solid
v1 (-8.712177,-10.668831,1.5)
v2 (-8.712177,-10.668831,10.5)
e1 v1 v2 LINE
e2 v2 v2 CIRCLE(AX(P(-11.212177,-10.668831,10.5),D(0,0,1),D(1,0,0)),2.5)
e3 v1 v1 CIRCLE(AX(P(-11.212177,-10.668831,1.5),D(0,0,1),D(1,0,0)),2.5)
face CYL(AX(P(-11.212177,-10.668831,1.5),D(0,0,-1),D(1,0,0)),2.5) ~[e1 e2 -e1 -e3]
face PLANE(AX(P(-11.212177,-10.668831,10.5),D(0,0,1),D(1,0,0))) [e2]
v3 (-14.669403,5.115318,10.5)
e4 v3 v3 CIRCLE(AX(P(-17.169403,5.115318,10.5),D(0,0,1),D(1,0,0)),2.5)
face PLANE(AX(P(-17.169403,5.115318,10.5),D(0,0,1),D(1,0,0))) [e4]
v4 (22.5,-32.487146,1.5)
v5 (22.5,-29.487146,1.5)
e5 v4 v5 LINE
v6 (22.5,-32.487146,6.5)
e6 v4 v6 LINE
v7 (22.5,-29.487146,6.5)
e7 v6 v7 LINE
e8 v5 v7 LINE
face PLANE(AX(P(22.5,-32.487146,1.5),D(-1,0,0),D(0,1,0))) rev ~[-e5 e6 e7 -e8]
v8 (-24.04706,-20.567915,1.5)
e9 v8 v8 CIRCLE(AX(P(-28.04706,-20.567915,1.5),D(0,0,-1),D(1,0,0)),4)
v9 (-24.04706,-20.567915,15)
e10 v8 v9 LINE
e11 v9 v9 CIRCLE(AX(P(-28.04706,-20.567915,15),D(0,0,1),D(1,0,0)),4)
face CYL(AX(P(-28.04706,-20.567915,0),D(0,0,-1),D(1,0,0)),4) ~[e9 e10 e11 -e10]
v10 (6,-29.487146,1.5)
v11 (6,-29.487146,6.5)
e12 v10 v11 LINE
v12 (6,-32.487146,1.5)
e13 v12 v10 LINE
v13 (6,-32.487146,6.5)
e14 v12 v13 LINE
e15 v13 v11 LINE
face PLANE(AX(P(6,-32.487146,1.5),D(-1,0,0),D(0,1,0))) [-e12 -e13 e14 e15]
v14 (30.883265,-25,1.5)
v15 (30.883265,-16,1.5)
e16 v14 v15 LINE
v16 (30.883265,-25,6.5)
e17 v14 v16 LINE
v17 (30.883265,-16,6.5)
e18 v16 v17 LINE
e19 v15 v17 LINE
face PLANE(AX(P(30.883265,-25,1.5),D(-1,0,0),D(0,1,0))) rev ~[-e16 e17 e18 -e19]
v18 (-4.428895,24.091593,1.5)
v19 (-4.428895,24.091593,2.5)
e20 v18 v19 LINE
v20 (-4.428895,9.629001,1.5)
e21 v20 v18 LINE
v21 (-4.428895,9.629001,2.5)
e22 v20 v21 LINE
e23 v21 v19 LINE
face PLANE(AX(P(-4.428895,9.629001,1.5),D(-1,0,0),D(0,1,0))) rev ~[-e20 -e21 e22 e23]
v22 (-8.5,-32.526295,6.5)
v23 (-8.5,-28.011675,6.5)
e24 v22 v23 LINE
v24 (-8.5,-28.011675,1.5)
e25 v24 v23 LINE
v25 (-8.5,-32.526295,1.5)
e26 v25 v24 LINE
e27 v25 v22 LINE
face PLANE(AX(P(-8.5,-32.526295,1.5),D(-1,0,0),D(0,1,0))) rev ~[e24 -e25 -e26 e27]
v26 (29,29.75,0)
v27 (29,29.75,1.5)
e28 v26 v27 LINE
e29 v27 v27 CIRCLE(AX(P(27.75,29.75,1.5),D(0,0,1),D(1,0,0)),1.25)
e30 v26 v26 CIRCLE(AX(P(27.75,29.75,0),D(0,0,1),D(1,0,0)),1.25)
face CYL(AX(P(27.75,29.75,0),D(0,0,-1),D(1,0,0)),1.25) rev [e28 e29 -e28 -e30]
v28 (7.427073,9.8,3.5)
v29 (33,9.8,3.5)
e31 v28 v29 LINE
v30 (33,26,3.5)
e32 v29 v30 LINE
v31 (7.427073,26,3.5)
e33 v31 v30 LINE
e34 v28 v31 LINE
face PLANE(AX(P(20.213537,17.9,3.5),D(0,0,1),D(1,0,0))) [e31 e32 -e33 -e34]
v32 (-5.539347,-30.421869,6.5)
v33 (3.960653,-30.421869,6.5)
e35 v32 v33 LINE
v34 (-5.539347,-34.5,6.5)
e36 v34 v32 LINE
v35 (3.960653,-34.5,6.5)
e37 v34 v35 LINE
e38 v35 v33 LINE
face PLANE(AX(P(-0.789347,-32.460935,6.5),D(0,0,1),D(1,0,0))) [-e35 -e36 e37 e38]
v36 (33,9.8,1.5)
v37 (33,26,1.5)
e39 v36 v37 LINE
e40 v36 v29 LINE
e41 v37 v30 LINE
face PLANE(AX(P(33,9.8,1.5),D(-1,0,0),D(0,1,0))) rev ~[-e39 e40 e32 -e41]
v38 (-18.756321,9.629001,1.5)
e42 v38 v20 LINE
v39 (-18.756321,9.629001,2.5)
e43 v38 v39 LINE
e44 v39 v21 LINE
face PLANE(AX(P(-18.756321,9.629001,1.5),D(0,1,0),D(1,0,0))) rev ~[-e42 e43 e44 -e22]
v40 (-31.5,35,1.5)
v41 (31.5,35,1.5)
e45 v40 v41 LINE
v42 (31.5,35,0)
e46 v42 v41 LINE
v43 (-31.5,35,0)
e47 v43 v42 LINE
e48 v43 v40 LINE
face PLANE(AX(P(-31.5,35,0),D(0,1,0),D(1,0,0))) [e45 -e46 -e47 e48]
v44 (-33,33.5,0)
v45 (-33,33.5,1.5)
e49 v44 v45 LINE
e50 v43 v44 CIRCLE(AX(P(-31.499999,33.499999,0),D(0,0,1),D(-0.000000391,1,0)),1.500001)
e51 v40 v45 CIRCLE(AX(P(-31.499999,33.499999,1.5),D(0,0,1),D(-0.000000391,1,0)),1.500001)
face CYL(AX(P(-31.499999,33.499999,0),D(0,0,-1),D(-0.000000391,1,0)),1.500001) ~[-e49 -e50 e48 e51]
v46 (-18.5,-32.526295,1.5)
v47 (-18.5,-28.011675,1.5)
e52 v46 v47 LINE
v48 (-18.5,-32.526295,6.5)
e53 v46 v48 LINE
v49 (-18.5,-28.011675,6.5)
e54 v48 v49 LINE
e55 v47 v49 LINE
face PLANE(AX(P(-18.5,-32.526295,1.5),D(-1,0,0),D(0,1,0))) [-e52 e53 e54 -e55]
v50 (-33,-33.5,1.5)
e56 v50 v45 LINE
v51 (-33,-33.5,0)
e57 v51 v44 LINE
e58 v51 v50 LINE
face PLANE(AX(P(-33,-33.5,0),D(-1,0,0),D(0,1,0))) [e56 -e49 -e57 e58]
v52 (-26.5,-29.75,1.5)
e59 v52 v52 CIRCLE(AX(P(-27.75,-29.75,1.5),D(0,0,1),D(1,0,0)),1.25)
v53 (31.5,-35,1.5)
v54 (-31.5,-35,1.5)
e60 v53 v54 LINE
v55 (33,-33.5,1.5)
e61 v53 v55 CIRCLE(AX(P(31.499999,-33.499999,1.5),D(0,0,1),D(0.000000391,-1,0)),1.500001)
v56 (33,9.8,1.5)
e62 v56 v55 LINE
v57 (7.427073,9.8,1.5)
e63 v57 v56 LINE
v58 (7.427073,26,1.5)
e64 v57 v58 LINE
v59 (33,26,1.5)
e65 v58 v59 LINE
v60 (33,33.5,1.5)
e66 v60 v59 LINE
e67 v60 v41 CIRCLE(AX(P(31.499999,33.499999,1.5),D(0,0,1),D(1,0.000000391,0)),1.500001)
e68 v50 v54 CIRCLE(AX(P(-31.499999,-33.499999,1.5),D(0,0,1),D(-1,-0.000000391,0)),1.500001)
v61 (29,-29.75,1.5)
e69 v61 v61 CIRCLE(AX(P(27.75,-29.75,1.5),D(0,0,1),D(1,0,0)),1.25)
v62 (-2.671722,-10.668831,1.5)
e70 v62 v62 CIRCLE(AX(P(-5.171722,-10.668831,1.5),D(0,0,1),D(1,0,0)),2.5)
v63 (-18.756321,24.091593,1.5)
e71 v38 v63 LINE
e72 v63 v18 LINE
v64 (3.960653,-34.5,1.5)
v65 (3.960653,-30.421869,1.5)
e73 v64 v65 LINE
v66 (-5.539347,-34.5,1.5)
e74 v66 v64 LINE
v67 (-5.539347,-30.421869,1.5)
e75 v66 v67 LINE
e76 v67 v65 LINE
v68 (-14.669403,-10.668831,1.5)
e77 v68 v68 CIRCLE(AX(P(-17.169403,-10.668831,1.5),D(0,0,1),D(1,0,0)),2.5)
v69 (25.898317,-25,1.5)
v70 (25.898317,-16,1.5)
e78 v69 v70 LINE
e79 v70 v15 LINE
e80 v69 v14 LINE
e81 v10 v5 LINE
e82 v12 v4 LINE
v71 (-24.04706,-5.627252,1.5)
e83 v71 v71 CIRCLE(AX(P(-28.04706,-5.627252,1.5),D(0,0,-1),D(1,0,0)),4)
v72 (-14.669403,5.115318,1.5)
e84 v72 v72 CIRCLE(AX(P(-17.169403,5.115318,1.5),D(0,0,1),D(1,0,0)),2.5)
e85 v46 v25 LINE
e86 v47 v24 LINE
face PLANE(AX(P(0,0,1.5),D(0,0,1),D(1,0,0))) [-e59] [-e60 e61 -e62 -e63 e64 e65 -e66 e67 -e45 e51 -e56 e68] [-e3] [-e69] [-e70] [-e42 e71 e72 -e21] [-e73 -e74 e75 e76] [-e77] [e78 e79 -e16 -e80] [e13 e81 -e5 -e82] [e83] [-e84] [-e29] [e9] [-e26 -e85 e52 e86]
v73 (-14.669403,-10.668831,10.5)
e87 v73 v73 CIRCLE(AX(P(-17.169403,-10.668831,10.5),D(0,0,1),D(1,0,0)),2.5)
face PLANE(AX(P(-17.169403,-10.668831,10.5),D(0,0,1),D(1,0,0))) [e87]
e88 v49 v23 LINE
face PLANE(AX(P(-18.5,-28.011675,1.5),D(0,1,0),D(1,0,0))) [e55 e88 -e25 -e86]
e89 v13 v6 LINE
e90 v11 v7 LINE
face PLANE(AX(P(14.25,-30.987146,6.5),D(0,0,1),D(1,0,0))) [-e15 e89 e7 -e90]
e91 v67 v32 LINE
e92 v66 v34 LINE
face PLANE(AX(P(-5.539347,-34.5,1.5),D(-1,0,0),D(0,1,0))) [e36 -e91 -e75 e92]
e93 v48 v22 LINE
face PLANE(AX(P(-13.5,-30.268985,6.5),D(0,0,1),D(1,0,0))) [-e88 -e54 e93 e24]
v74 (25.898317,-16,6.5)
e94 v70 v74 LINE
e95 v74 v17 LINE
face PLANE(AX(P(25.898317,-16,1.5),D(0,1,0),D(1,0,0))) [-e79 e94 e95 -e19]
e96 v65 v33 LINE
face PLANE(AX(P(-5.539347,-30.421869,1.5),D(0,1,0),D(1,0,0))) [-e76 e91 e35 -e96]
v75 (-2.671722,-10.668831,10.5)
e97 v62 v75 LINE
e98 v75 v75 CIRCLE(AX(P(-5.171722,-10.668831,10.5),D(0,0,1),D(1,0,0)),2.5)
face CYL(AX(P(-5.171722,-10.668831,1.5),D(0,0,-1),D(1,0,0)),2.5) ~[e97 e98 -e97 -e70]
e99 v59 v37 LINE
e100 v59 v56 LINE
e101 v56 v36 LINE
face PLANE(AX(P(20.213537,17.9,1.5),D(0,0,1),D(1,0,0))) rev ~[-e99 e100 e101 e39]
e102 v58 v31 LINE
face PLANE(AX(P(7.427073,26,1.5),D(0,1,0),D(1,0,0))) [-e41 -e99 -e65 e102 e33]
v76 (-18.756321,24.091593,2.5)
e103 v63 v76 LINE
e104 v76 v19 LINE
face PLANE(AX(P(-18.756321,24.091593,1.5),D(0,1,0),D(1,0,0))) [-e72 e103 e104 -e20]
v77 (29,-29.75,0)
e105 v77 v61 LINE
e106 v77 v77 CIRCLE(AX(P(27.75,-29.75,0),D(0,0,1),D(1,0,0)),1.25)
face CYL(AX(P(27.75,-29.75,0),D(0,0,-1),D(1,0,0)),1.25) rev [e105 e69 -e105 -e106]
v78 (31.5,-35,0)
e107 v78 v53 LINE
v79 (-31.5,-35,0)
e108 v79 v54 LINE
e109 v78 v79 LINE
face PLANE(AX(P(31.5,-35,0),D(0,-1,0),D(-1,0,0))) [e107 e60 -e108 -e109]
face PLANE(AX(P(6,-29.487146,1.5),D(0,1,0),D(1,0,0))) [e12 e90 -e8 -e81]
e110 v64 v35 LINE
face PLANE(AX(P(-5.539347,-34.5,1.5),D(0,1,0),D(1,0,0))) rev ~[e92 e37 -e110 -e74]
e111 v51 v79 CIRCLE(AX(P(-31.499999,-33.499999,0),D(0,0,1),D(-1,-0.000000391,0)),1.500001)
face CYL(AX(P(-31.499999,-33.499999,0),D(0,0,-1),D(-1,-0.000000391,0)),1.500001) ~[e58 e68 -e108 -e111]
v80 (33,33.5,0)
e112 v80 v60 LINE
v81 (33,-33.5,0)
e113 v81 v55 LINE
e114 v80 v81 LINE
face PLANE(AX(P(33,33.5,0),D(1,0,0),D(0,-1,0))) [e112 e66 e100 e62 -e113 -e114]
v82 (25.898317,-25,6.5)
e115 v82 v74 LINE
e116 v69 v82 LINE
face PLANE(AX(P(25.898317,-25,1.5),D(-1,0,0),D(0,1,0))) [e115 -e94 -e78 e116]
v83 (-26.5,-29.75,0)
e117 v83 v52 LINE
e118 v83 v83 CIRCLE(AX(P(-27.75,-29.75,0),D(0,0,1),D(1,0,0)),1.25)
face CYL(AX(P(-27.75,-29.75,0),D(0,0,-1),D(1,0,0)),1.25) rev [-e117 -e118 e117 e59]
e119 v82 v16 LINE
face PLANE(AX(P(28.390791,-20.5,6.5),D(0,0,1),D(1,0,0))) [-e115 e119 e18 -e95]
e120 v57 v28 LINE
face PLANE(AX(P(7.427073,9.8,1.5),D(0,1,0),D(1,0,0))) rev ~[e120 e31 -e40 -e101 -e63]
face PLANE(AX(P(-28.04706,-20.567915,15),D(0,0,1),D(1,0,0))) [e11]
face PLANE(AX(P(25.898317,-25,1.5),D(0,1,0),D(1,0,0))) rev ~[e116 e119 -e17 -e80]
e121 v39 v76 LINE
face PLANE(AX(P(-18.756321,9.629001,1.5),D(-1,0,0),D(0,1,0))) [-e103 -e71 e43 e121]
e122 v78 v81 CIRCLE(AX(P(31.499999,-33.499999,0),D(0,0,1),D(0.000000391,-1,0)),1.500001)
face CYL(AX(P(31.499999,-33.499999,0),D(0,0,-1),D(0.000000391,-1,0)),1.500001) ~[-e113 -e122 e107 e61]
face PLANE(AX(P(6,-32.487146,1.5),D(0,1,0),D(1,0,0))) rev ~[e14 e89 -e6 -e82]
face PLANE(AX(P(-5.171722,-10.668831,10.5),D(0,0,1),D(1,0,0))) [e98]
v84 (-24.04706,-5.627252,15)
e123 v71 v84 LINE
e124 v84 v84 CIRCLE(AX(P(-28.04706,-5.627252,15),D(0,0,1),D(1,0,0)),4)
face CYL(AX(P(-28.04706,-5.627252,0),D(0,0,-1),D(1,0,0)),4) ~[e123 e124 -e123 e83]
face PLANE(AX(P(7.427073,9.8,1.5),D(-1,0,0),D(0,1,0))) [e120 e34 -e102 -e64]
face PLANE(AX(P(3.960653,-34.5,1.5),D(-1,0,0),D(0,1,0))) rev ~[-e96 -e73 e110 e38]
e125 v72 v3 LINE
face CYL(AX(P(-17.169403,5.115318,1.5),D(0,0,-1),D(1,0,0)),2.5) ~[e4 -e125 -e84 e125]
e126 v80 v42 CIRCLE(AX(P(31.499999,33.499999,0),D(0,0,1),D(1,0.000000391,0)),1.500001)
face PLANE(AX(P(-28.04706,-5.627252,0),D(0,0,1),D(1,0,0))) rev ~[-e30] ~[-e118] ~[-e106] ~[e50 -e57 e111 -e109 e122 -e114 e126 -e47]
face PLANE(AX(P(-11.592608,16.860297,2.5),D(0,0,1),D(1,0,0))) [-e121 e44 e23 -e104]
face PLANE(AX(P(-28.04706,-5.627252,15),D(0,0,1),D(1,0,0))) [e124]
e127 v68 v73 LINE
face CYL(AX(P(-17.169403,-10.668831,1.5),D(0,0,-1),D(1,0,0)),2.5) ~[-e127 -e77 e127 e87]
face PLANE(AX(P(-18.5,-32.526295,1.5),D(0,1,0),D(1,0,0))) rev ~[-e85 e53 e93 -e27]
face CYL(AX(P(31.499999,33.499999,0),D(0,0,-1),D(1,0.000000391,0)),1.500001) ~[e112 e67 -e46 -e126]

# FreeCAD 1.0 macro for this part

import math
import FreeCAD as App
import Part
import Sketcher


def add_polygon(sketch, points):
    """Adds a closed chain of lines whose ends are joined by coincident constraints."""
    first, n = sketch.GeometryCount, len(points)
    for a, b in zip(points, points[1:] + points[:1]):
        sketch.addGeometry(Part.LineSegment(App.Vector(*a, 0), App.Vector(*b, 0)), False)
    for i in range(n):
        sketch.addConstraint(Sketcher.Constraint("Coincident", first + i, 2, first + (i + 1) % n, 1))

doc = App.newDocument("Part")
body = doc.addObject("PartDesign::Body", "Body")

sketch1 = body.newObject("Sketcher::SketchObject", "Sketch")
sketch1.AttachmentSupport = (doc.getObject("XY_Plane"), [""])
sketch1.MapMode = "FlatFace"
sketch1.addGeometry(Part.ArcOfCircle(Part.Circle(App.Vector(-31.5, 33.5, 0), App.Vector(0, 0, 1), 1.5), math.radians(90), math.radians(180)), False)
sketch1.addGeometry(Part.LineSegment(App.Vector(-33, 33.5, 0), App.Vector(-33, -33.5, 0)), False)
sketch1.addGeometry(Part.ArcOfCircle(Part.Circle(App.Vector(-31.5, -33.5, 0), App.Vector(0, 0, 1), 1.5), math.radians(-180), math.radians(-90)), False)
sketch1.addGeometry(Part.LineSegment(App.Vector(-31.5, -35, 0), App.Vector(31.5, -35, 0)), False)
sketch1.addGeometry(Part.ArcOfCircle(Part.Circle(App.Vector(31.5, -33.5, 0), App.Vector(0, 0, 1), 1.5), math.radians(-90), math.radians(0)), False)
sketch1.addGeometry(Part.LineSegment(App.Vector(33, -33.5, 0), App.Vector(33, 33.5, 0)), False)
sketch1.addGeometry(Part.ArcOfCircle(Part.Circle(App.Vector(31.5, 33.5, 0), App.Vector(0, 0, 1), 1.5), math.radians(0), math.radians(90)), False)
sketch1.addGeometry(Part.LineSegment(App.Vector(31.5, 35, 0), App.Vector(-31.5, 35, 0)), False)
sketch1.addGeometry(Part.Circle(App.Vector(-27.8, -29.8, 0), App.Vector(0, 0, 1), 1.2), False)
sketch1.addGeometry(Part.Circle(App.Vector(27.8, -29.8, 0), App.Vector(0, 0, 1), 1.2), False)
sketch1.addGeometry(Part.Circle(App.Vector(27.8, 29.8, 0), App.Vector(0, 0, 1), 1.2), False)
sketch1.addConstraint(Sketcher.Constraint("Tangent", 0, 2, 1, 1))
sketch1.addConstraint(Sketcher.Constraint("Tangent", 1, 2, 2, 1))
sketch1.addConstraint(Sketcher.Constraint("Tangent", 2, 2, 3, 1))
sketch1.addConstraint(Sketcher.Constraint("Tangent", 3, 2, 4, 1))
sketch1.addConstraint(Sketcher.Constraint("Tangent", 4, 2, 5, 1))
sketch1.addConstraint(Sketcher.Constraint("Tangent", 5, 2, 6, 1))
sketch1.addConstraint(Sketcher.Constraint("Tangent", 6, 2, 7, 1))
sketch1.addConstraint(Sketcher.Constraint("Tangent", 7, 2, 0, 1))
sketch1.addConstraint(Sketcher.Constraint("Vertical", 1))
sketch1.addConstraint(Sketcher.Constraint("Horizontal", 3))
sketch1.addConstraint(Sketcher.Constraint("Vertical", 5))
sketch1.addConstraint(Sketcher.Constraint("Horizontal", 7))
sketch1.addConstraint(Sketcher.Constraint("Equal", 0, 2))
sketch1.addConstraint(Sketcher.Constraint("Equal", 2, 4))
sketch1.addConstraint(Sketcher.Constraint("Equal", 4, 6))
sketch1.addConstraint(Sketcher.Constraint("Equal", 8, 9))
sketch1.addConstraint(Sketcher.Constraint("Equal", 9, 10))
sketch1.addConstraint(Sketcher.Constraint("Symmetric", 0, 3, 4, 3, -1, 1))
sketch1.addConstraint(Sketcher.Constraint("Symmetric", 8, 3, 10, 3, -1, 1))
sketch1.addConstraint(Sketcher.Constraint("Symmetric", 8, 3, 9, 3, -2))
sketch1.addConstraint(Sketcher.Constraint("Diameter", 8, 2.5))
sketch1.addConstraint(Sketcher.Constraint("Radius", 0, 1.500001))
sketch1.addConstraint(Sketcher.Constraint("DistanceX", 3, 1, 3, 2, 63.0))
sketch1.addConstraint(Sketcher.Constraint("DistanceY", 1, 2, 1, 1, 67.0))
sketch1.addConstraint(Sketcher.Constraint("DistanceX", 8, 3, 9, 3, 55.5))
sketch1.addConstraint(Sketcher.Constraint("DistanceY", 9, 3, 10, 3, 59.5))
pad1 = body.newObject("PartDesign::Pad", "Pad")
pad1.Profile = sketch1
pad1.Length = 1.5

sketch2 = body.newObject("Sketcher::SketchObject", "Sketch001")
sketch2.AttachmentSupport = (doc.getObject("XY_Plane"), [""])
sketch2.MapMode = "FlatFace"
sketch2.addGeometry(Part.Circle(App.Vector(-28, -5.6, 0), App.Vector(0, 0, 1), 4), False)
sketch2.addGeometry(Part.Circle(App.Vector(-28, -20.6, 0), App.Vector(0, 0, 1), 4), False)
sketch2.addConstraint(Sketcher.Constraint("Equal", 0, 1))
sketch2.addConstraint(Sketcher.Constraint("Vertical", 0, 3, 1, 3))
sketch2.addConstraint(Sketcher.Constraint("Diameter", 0, 8.0))
sketch2.addConstraint(Sketcher.Constraint("DistanceX", 0, 3, -1, 1, 28.04706))
sketch2.addConstraint(Sketcher.Constraint("DistanceY", 0, 3, -1, 1, 5.627252))
sketch2.addConstraint(Sketcher.Constraint("DistanceY", 1, 3, -1, 1, 20.567915))
pad2 = body.newObject("PartDesign::Pad", "Pad001")
pad2.Profile = sketch2
pad2.Length = 15

sketch3 = body.newObject("Sketcher::SketchObject", "Sketch002")
sketch3.AttachmentSupport = (doc.getObject("XY_Plane"), [""])
sketch3.MapMode = "FlatFace"
sketch3.AttachmentOffset = App.Placement(App.Vector(0, 0, 1.5), App.Rotation())
add_polygon(sketch3, [(-19, 24), (-19, 10), (-4, 10), (-4, 24)])
sketch3.addConstraint(Sketcher.Constraint("Vertical", 0))
sketch3.addConstraint(Sketcher.Constraint("Horizontal", 1))
sketch3.addConstraint(Sketcher.Constraint("Vertical", 2))
sketch3.addConstraint(Sketcher.Constraint("Horizontal", 3))
sketch3.addConstraint(Sketcher.Constraint("DistanceY", -1, 1, 0, 2, 9.629001))
sketch3.addConstraint(Sketcher.Constraint("DistanceY", 0, 2, 0, 1, 14.462592))
sketch3.addConstraint(Sketcher.Constraint("DistanceX", 1, 1, 1, 2, 14.327426))
sketch3.addConstraint(Sketcher.Constraint("DistanceX", 0, 2, -1, 1, 18.756321))
pad3 = body.newObject("PartDesign::Pad", "Pad002")
pad3.Profile = sketch3
pad3.Length = 1

sketch4 = body.newObject("Sketcher::SketchObject", "Sketch003")
sketch4.AttachmentSupport = (doc.getObject("XY_Plane"), [""])
sketch4.MapMode = "FlatFace"
sketch4.AttachmentOffset = App.Placement(App.Vector(0, 0, 1.5), App.Rotation())
sketch4.addGeometry(Part.Circle(App.Vector(-17.2, 5.1, 0), App.Vector(0, 0, 1), 2.5), False)
sketch4.addGeometry(Part.Circle(App.Vector(-17.2, -10.7, 0), App.Vector(0, 0, 1), 2.5), False)
sketch4.addGeometry(Part.Circle(App.Vector(-11.2, -10.7, 0), App.Vector(0, 0, 1), 2.5), False)
sketch4.addGeometry(Part.Circle(App.Vector(-5.2, -10.7, 0), App.Vector(0, 0, 1), 2.5), False)
sketch4.addConstraint(Sketcher.Constraint("Equal", 0, 1))
sketch4.addConstraint(Sketcher.Constraint("Equal", 1, 2))
sketch4.addConstraint(Sketcher.Constraint("Equal", 2, 3))
sketch4.addConstraint(Sketcher.Constraint("Horizontal", 1, 3, 2, 3))
sketch4.addConstraint(Sketcher.Constraint("Horizontal", 2, 3, 3, 3))
sketch4.addConstraint(Sketcher.Constraint("Vertical", 0, 3, 1, 3))
sketch4.addConstraint(Sketcher.Constraint("Diameter", 0, 5.0))
sketch4.addConstraint(Sketcher.Constraint("DistanceY", -1, 1, 0, 3, 5.115318))
sketch4.addConstraint(Sketcher.Constraint("DistanceY", 1, 3, -1, 1, 10.668831))
sketch4.addConstraint(Sketcher.Constraint("DistanceX", 1, 3, 3, 3, 11.997681))
sketch4.addConstraint(Sketcher.Constraint("DistanceX", 0, 3, -1, 1, 17.169403))
sketch4.addConstraint(Sketcher.Constraint("DistanceX", 2, 3, -1, 1, 11.212177))
pad4 = body.newObject("PartDesign::Pad", "Pad003")
pad4.Profile = sketch4
pad4.Length = 9

sketch5 = body.newObject("Sketcher::SketchObject", "Sketch004")
sketch5.AttachmentSupport = (doc.getObject("XY_Plane"), [""])
sketch5.MapMode = "FlatFace"
sketch5.AttachmentOffset = App.Placement(App.Vector(0, 0, 1.5), App.Rotation())
add_polygon(sketch5, [(-18.5, -28), (-18.5, -32.5), (-8.5, -32.5), (-8.5, -28)])
add_polygon(sketch5, [(-5.5, -30.4), (-5.5, -34.5), (4, -34.5), (4, -30.4)])
add_polygon(sketch5, [(6, -29.5), (6, -32.5), (22.5, -32.5), (22.5, -29.5)])
sketch5.addConstraint(Sketcher.Constraint("Vertical", 0))
sketch5.addConstraint(Sketcher.Constraint("Horizontal", 1))
sketch5.addConstraint(Sketcher.Constraint("Vertical", 2))
sketch5.addConstraint(Sketcher.Constraint("Horizontal", 3))
sketch5.addConstraint(Sketcher.Constraint("Vertical", 4))
sketch5.addConstraint(Sketcher.Constraint("Horizontal", 5))
sketch5.addConstraint(Sketcher.Constraint("Vertical", 6))
sketch5.addConstraint(Sketcher.Constraint("Horizontal", 7))
sketch5.addConstraint(Sketcher.Constraint("Vertical", 8))
sketch5.addConstraint(Sketcher.Constraint("Horizontal", 9))
sketch5.addConstraint(Sketcher.Constraint("Vertical", 10))
sketch5.addConstraint(Sketcher.Constraint("Horizontal", 11))
sketch5.addConstraint(Sketcher.Constraint("DistanceX", 1, 1, 1, 2, 10.0))
sketch5.addConstraint(Sketcher.Constraint("DistanceY", 8, 2, 8, 1, 3.0))
sketch5.addConstraint(Sketcher.Constraint("DistanceX", 5, 1, 5, 2, 9.5))
sketch5.addConstraint(Sketcher.Constraint("DistanceX", 9, 1, 9, 2, 16.5))
sketch5.addConstraint(Sketcher.Constraint("DistanceX", -1, 1, 8, 2, 6.0))
sketch5.addConstraint(Sketcher.Constraint("DistanceX", 0, 2, -1, 1, 18.5))
sketch5.addConstraint(Sketcher.Constraint("DistanceY", 4, 2, -1, 1, 34.5))
sketch5.addConstraint(Sketcher.Constraint("DistanceY", 0, 2, 0, 1, 4.51462))
sketch5.addConstraint(Sketcher.Constraint("DistanceY", 4, 2, 4, 1, 4.078131))
sketch5.addConstraint(Sketcher.Constraint("DistanceY", 1, 2, 8, 2, 0.039149))
sketch5.addConstraint(Sketcher.Constraint("DistanceY", 0, 2, -1, 1, 32.526295))
sketch5.addConstraint(Sketcher.Constraint("DistanceX", 4, 2, -1, 1, 5.539347))
pad5 = body.newObject("PartDesign::Pad", "Pad004")
pad5.Profile = sketch5
pad5.Length = 5

sketch6 = body.newObject("Sketcher::SketchObject", "Sketch005")
sketch6.AttachmentSupport = (doc.getObject("XY_Plane"), [""])
sketch6.MapMode = "FlatFace"
sketch6.AttachmentOffset = App.Placement(App.Vector(0, 0, 1.5), App.Rotation())
add_polygon(sketch6, [(7, 26), (7, 10), (33, 10), (33, 26)])
sketch6.addConstraint(Sketcher.Constraint("Vertical", 0))
sketch6.addConstraint(Sketcher.Constraint("Horizontal", 1))
sketch6.addConstraint(Sketcher.Constraint("Vertical", 2))
sketch6.addConstraint(Sketcher.Constraint("Horizontal", 3))
sketch6.addConstraint(Sketcher.Constraint("DistanceY", 0, 2, 0, 1, 16.2))
sketch6.addConstraint(Sketcher.Constraint("DistanceX", -1, 1, 1, 2, 33.0))
sketch6.addConstraint(Sketcher.Constraint("DistanceY", -1, 1, 2, 2, 26.0))
sketch6.addConstraint(Sketcher.Constraint("DistanceX", 1, 1, 1, 2, 25.572927))
pad6 = body.newObject("PartDesign::Pad", "Pad005")
pad6.Profile = sketch6
pad6.Length = 2

sketch7 = body.newObject("Sketcher::SketchObject", "Sketch006")
sketch7.AttachmentSupport = (doc.getObject("XY_Plane"), [""])
sketch7.MapMode = "FlatFace"
sketch7.AttachmentOffset = App.Placement(App.Vector(0, 0, 1.5), App.Rotation())
add_polygon(sketch7, [(25.9, -16), (25.9, -25), (30.9, -25), (30.9, -16)])
sketch7.addConstraint(Sketcher.Constraint("Vertical", 0))
sketch7.addConstraint(Sketcher.Constraint("Horizontal", 1))
sketch7.addConstraint(Sketcher.Constraint("Vertical", 2))
sketch7.addConstraint(Sketcher.Constraint("Horizontal", 3))
sketch7.addConstraint(Sketcher.Constraint("DistanceY", 0, 2, 0, 1, 9.0))
sketch7.addConstraint(Sketcher.Constraint("DistanceY", 0, 2, -1, 1, 25.0))
sketch7.addConstraint(Sketcher.Constraint("DistanceX", 1, 1, 1, 2, 4.984948))
sketch7.addConstraint(Sketcher.Constraint("DistanceX", -1, 1, 0, 2, 25.898317))
pad7 = body.newObject("PartDesign::Pad", "Pad006")
pad7.Profile = sketch7
pad7.Length = 5

doc.recompute()
